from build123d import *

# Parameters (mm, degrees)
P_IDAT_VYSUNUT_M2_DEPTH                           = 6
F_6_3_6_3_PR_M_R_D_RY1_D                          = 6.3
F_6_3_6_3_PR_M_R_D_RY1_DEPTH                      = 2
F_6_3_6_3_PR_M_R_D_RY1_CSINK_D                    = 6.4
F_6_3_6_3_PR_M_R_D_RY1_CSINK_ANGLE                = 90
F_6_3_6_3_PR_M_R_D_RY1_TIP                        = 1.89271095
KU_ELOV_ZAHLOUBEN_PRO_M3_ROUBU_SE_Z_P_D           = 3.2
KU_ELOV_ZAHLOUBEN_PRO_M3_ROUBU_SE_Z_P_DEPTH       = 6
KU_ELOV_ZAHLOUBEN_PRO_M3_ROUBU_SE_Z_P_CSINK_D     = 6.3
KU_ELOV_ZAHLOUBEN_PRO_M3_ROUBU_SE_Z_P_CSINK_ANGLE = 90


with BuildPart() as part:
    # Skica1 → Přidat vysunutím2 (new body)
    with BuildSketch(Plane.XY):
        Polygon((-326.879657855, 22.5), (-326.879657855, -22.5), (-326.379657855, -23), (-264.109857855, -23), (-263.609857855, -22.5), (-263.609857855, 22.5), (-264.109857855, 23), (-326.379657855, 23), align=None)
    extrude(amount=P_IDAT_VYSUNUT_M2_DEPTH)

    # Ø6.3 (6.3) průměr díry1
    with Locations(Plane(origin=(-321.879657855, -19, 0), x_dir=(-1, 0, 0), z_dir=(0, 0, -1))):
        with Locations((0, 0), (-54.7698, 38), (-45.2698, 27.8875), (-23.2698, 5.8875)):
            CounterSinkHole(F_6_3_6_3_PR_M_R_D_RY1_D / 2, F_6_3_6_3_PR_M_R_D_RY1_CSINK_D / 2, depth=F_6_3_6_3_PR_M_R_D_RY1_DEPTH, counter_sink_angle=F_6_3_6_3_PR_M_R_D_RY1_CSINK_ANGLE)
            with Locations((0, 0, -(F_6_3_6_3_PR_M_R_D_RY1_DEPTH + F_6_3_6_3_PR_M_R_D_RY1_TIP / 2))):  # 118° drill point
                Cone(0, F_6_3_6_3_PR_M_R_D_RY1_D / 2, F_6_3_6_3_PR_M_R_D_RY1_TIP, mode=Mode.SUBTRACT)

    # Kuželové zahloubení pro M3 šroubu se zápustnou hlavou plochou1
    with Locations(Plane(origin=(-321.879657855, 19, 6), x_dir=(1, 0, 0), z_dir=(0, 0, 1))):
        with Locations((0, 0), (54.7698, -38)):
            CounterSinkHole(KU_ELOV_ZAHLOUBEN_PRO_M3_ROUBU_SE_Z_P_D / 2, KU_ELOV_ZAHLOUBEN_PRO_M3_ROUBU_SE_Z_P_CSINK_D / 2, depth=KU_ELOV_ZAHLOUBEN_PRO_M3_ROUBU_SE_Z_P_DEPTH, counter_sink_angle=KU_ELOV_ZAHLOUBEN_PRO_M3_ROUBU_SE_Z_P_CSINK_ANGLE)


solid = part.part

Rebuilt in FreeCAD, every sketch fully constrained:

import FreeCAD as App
import Part
import Sketcher
from FreeCAD import Vector


def add_polygon(sketch, points):
    """Adds a closed chain of lines whose ends are joined by coincident constraints."""
    first, n = sketch.GeometryCount, len(points)
    for a, b in zip(points, points[1:] + points[:1]):
        sketch.addGeometry(Part.LineSegment(App.Vector(*a, 0), App.Vector(*b, 0)), False)
    for i in range(n):
        sketch.addConstraint(Sketcher.Constraint("Coincident", first + i, 2, first + (i + 1) % n, 1))

doc = App.newDocument("Part")
body = doc.addObject("PartDesign::Body", "Body")

# Sketch on XY plane
sketch1 = body.newObject("Sketcher::SketchObject", "Sketch")
sketch1.AttachmentSupport = (doc.getObject("XY_Plane"), [""])
sketch1.MapMode = "FlatFace"
add_polygon(sketch1, [(-326.9, 22.5), (-326.9, -22.5), (-326.4, -23), (-264.1, -23), (-263.6, -22.5), (-263.6, 22.5), (-264.1, 23), (-326.4, 23)])  # lines 0-7
sketch1.addConstraint([
    Sketcher.Constraint("Vertical", 0),
    Sketcher.Constraint("Horizontal", 2),
    Sketcher.Constraint("Vertical", 4),
    Sketcher.Constraint("Horizontal", 6),
    Sketcher.Constraint("Symmetric", 2, 2, 5, 2, -1),
    Sketcher.Constraint("Perpendicular", 1, 3),
    Sketcher.Constraint("Perpendicular", 3, 5),
    Sketcher.Constraint("Perpendicular", 5, 7),
    Sketcher.Constraint("Horizontal", 0, 2, 3, 2),
    Sketcher.Constraint("Horizontal", 4, 2, 7, 2),
    Sketcher.Constraint("Vertical", 1, 2, 6, 2),
    Sketcher.Constraint("DistanceY", 0, 2, 0, 1, 45.0),
    Sketcher.Constraint("DistanceY", 1, 2, -1, 1, 23.0),
    Sketcher.Constraint("DistanceX", 2, 1, 2, 2, 62.2698),
    Sketcher.Constraint("DistanceX", 0, 2, -1, 1, 326.879658),
])
pad1 = body.newObject("PartDesign::Pad", "Pad")
pad1.Profile = sketch1
pad1.Length = 6

# Sketch on XY plane
sketch2 = body.newObject("Sketcher::SketchObject", "Sketch001")
sketch2.AttachmentSupport = (doc.getObject("XY_Plane"), [""])
sketch2.MapMode = "FlatFace"
sketch2.addGeometry([
    Part.Circle(Vector(-321.9, -19, 0), Vector(0, 0, 1), 3.1),
    Part.Circle(Vector(-267.1, 19, 0), Vector(0, 0, 1), 3.1),
    Part.Circle(Vector(-276.6, 8.9, 0), Vector(0, 0, 1), 3.1),
    Part.Circle(Vector(-298.6, -13.1, 0), Vector(0, 0, 1), 3.1),
], False)
sketch2.addConstraint([
    Sketcher.Constraint("Equal", 0, 1),
    Sketcher.Constraint("Equal", 1, 2),
    Sketcher.Constraint("Equal", 2, 3),
    Sketcher.Constraint("Diameter", 0, 6.3),
    Sketcher.Constraint("DistanceY", 0, 3, -1, 1, 19.0),
    Sketcher.Constraint("DistanceY", -1, 1, 1, 3, 19.0),
    Sketcher.Constraint("DistanceX", 3, 3, 2, 3, 22.0),
    Sketcher.Constraint("DistanceY", 3, 3, 2, 3, 22.0),
    Sketcher.Constraint("DistanceX", 2, 3, 1, 3, 9.5),
    Sketcher.Constraint("DistanceY", -1, 1, 2, 3, 8.8875),
    Sketcher.Constraint("DistanceX", 0, 3, 1, 3, 54.7698),
    Sketcher.Constraint("DistanceX", 0, 3, -1, 1, 321.879658),
])
doc.recompute()
hole = body.newObject("PartDesign::Hole", "Hole")
hole.Profile = sketch2
hole.ThreadType = "None"
hole.Diameter = 6.3
hole.DepthType = "Dimension"
hole.Depth = 2
hole.DrillPoint = "Angled"
hole.DrillPointAngle = 118
hole.HoleCutType = "Countersink"
hole.HoleCutDiameter = 6.4
hole.HoleCutCountersinkAngle = 90
hole.Reversed = True

# Sketch on XY plane
sketch3 = body.newObject("Sketcher::SketchObject", "Sketch002")
sketch3.AttachmentSupport = (doc.getObject("XY_Plane"), [""])
sketch3.MapMode = "FlatFace"
sketch3.AttachmentOffset = App.Placement(Vector(0, 0, 6), App.Rotation())
sketch3.addGeometry([
    Part.Circle(Vector(-321.9, 19, 0), Vector(0, 0, 1), 1.6),
    Part.Circle(Vector(-267.1, -19, 0), Vector(0, 0, 1), 1.6),
], False)
sketch3.addConstraint([
    Sketcher.Constraint("Equal", 0, 1),
    Sketcher.Constraint("Diameter", 0, 3.2),
    Sketcher.Constraint("DistanceY", -1, 1, 0, 3, 19.0),
    Sketcher.Constraint("DistanceY", 1, 3, -1, 1, 19.0),
    Sketcher.Constraint("DistanceX", 0, 3, 1, 3, 54.7698),
    Sketcher.Constraint("DistanceX", 0, 3, -1, 1, 321.879658),
])
doc.recompute()
hole2 = body.newObject("PartDesign::Hole", "Hole001")
hole2.Profile = sketch3
hole2.ThreadType = "None"
hole2.Diameter = 3.2
hole2.DepthType = "Dimension"
hole2.Depth = 6
hole2.DrillPoint = "Flat"
hole2.HoleCutType = "Countersink"
hole2.HoleCutDiameter = 6.3
hole2.HoleCutCountersinkAngle = 90

doc.recompute()
